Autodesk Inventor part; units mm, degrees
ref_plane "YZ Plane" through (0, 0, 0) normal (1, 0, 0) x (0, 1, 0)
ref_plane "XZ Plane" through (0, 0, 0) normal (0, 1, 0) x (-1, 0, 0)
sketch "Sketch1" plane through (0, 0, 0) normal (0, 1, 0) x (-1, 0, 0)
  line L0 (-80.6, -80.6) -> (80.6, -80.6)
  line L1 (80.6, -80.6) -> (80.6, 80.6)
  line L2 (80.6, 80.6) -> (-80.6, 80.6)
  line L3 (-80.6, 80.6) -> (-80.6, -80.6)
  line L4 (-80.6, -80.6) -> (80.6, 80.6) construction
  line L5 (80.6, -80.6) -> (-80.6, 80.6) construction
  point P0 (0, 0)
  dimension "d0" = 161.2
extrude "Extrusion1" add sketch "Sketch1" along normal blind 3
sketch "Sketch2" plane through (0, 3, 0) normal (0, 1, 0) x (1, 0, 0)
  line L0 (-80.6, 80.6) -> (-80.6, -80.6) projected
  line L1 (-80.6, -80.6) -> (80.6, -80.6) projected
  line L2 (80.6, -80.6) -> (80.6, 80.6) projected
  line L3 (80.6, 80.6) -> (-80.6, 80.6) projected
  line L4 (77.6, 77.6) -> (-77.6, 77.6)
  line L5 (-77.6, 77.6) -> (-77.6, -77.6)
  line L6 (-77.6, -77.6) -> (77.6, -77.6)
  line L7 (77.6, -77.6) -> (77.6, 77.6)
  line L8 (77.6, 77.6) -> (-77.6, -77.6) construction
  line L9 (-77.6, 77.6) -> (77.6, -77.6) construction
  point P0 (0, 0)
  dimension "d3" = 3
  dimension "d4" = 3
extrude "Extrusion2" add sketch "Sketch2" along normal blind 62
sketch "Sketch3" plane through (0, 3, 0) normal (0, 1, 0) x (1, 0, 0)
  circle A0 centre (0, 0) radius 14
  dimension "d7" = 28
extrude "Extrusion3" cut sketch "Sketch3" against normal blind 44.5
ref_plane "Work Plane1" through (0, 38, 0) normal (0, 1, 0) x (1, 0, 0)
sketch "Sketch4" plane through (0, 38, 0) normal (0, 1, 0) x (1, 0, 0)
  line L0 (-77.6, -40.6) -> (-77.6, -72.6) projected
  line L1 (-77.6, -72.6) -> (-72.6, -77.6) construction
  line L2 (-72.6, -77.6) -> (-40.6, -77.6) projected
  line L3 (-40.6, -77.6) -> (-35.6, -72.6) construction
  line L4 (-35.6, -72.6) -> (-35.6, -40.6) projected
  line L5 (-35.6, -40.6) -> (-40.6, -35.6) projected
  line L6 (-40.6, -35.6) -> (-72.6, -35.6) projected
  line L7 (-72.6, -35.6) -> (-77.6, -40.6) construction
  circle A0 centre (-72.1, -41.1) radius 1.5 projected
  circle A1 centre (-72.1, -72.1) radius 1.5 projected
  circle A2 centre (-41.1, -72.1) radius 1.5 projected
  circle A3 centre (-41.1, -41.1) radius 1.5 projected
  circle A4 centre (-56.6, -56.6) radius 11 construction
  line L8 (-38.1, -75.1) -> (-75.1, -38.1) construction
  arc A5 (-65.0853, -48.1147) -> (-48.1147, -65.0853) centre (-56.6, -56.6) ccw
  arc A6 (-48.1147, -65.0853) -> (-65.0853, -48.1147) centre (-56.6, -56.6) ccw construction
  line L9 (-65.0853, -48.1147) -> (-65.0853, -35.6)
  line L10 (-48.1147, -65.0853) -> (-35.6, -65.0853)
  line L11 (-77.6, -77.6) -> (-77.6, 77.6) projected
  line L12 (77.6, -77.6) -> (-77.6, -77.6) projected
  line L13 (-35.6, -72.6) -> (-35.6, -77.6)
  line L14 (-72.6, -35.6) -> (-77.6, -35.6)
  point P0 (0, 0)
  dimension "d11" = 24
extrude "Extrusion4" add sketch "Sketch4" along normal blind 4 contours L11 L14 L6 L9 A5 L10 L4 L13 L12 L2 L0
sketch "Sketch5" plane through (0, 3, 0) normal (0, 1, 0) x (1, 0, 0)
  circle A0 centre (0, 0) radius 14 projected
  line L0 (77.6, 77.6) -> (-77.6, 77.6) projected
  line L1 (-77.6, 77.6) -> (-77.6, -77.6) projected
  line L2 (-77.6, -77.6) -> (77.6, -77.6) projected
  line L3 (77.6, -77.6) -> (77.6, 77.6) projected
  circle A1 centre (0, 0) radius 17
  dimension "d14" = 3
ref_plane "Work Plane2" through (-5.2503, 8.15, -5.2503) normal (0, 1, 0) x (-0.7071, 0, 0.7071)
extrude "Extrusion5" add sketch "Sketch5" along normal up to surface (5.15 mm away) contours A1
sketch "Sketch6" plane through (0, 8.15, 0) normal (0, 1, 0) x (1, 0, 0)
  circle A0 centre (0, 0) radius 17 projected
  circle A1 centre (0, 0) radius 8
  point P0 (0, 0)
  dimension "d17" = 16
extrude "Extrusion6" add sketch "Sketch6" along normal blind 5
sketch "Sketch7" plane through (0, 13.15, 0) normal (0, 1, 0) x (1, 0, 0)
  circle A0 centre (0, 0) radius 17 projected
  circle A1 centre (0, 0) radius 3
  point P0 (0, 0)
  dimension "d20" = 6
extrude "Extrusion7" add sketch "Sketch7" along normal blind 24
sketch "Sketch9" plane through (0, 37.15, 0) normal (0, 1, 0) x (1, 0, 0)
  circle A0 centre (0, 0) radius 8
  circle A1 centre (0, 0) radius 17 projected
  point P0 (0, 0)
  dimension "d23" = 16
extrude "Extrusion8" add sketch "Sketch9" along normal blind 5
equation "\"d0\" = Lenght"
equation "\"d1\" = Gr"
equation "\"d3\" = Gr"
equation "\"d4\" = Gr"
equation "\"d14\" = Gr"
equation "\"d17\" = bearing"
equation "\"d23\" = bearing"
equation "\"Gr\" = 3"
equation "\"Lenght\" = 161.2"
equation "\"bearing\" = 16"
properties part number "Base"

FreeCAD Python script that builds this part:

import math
import FreeCAD as App
import Part
import Sketcher


def add_polygon(sketch, points):
    """Adds a closed chain of lines whose ends are joined by coincident constraints."""
    first, n = sketch.GeometryCount, len(points)
    for a, b in zip(points, points[1:] + points[:1]):
        sketch.addGeometry(Part.LineSegment(App.Vector(*a, 0), App.Vector(*b, 0)), False)
    for i in range(n):
        sketch.addConstraint(Sketcher.Constraint("Coincident", first + i, 2, first + (i + 1) % n, 1))

doc = App.newDocument("Part")
params = doc.addObject("Spreadsheet::Sheet", "Params")
for row, (alias, value) in enumerate([
    ("sketch1_width", "161.2 mm"),
    ("pad1_length", "3 mm"),
    ("sketch2_width", "161.2 mm"),
    ("pad2_length", "62 mm"),
    ("sketch3_diameter", "28 mm"),
    ("pocket1_length", "44.5 mm"),
    ("sketch4_radius", "12 mm"),
    ("sketch4_diameter", "3 mm"),
    ("sketch4_width", "42 mm"),
    ("pad3_length", "4 mm"),
    ("sketch5_diameter", "34 mm"),
    ("sketch5_diameter2", "28 mm"),
    ("pad4_length", "5.15 mm"),
    ("sketch6_diameter", "16 mm"),
    ("sketch6_diameter2", "34 mm"),
    ("pad5_length", "5 mm"),
    ("sketch7_diameter", "6 mm"),
    ("sketch7_diameter2", "34 mm"),
    ("pad6_length", "24 mm"),
    ("sketch8_diameter", "16 mm"),
    ("sketch8_diameter2", "34 mm"),
    ("pad7_length", "5 mm"),
], start=1):
    params.set(f"A{row}", alias)
    params.set(f"B{row}", "=" + value)
    params.setAlias(f"B{row}", alias)

body = doc.addObject("PartDesign::Body", "Body")

# Sketch on XZ plane
sketch1 = doc.addObject("Sketcher::SketchObject", "Sketch")
body.addObject(sketch1)
sketch1.AttachmentSupport = (doc.XZ_Plane, [""])
sketch1.MapMode = "FlatFace"
add_polygon(sketch1, [(80.6, 80.6), (80.6, -80.6), (-80.6, -80.6), (-80.6, 80.6)])  # lines 0-3
sketch1.addConstraint([
    Sketcher.Constraint("Vertical", 0),
    Sketcher.Constraint("Horizontal", 1),
    Sketcher.Constraint("Vertical", 2),
    Sketcher.Constraint("Horizontal", 3),
    Sketcher.Constraint("Symmetric", 0, 2, 2, 2, -1, 1),
    Sketcher.Constraint("Equal", 3, 0),
    Sketcher.Constraint("DistanceX", 1, 2, 1, 1, 161.2),
])
sketch1.setExpression("Constraints[10]", "Params.sketch1_width")
pad1 = doc.addObject("PartDesign::Pad", "Pad")
body.addObject(pad1)
pad1.Profile = sketch1
pad1.setExpression("Length", "Params.pad1_length")
pad1.Reversed = True

# Sketch on XZ plane
sketch2 = doc.addObject("Sketcher::SketchObject", "Sketch001")
body.addObject(sketch2)
sketch2.AttachmentSupport = (doc.XZ_Plane, [""])
sketch2.MapMode = "FlatFace"
sketch2.AttachmentOffset = App.Placement(App.Vector(0, 0, -3), App.Rotation())
add_polygon(sketch2, [(80.6, -80.6), (-80.6, -80.6), (-80.6, 80.6), (80.6, 80.6)])  # lines 0-3
add_polygon(sketch2, [(-77.6, -77.6), (77.6, -77.6), (77.6, 77.6), (-77.6, 77.6)])  # lines 4-7
sketch2.addConstraint([
    Sketcher.Constraint("Horizontal", 0),
    Sketcher.Constraint("Vertical", 1),
    Sketcher.Constraint("Horizontal", 2),
    Sketcher.Constraint("Vertical", 3),
    Sketcher.Constraint("Horizontal", 4),
    Sketcher.Constraint("Vertical", 5),
    Sketcher.Constraint("Horizontal", 6),
    Sketcher.Constraint("Vertical", 7),
    Sketcher.Constraint("Symmetric", 0, 2, 2, 2, -1, 1),
    Sketcher.Constraint("Symmetric", 4, 2, 6, 2, -1, 1),
    Sketcher.Constraint("Equal", 2, 1),
    Sketcher.Constraint("Equal", 6, 5),
    Sketcher.Constraint("DistanceX", 4, 2, 3, 2, 3.0),
    Sketcher.Constraint("DistanceX", 0, 2, 0, 1, 161.2),
])
sketch2.setExpression("Constraints[21]", "Params.sketch2_width")
pad2 = doc.addObject("PartDesign::Pad", "Pad001")
body.addObject(pad2)
pad2.Profile = sketch2
pad2.setExpression("Length", "Params.pad2_length")
pad2.Reversed = True

# Sketch on XZ plane
sketch3 = doc.addObject("Sketcher::SketchObject", "Sketch002")
body.addObject(sketch3)
sketch3.AttachmentSupport = (doc.XZ_Plane, [""])
sketch3.MapMode = "FlatFace"
sketch3.AttachmentOffset = App.Placement(App.Vector(0, 0, -3), App.Rotation())
sketch3.addGeometry(Part.Circle(App.Vector(0, 0, 0), App.Vector(0, 0, 1), 14), False)
sketch3.addConstraint([
    Sketcher.Constraint("Coincident", 0, 3, -1, 1),
    Sketcher.Constraint("Diameter", 0, 28.0),
])
sketch3.setExpression("Constraints[1]", "Params.sketch3_diameter")
pocket1 = doc.addObject("PartDesign::Pocket", "Pocket")
body.addObject(pocket1)
pocket1.Profile = sketch3
pocket1.setExpression("Length", "Params.pocket1_length")
pocket1.Reversed = True

# Sketch on XZ plane
sketch4 = doc.addObject("Sketcher::SketchObject", "Sketch003")
body.addObject(sketch4)
sketch4.AttachmentSupport = (doc.XZ_Plane, [""])
sketch4.MapMode = "FlatFace"
sketch4.AttachmentOffset = App.Placement(App.Vector(0, 0, -38), App.Rotation())
sketch4.addGeometry([
    Part.LineSegment(App.Vector(-77.6, 35.6, 0), App.Vector(-77.6, 77.6, 0)),  # 0
    Part.LineSegment(App.Vector(-77.6, 77.6, 0), App.Vector(-35.6, 77.6, 0)),  # 1
    Part.LineSegment(App.Vector(-35.6, 77.6, 0), App.Vector(-35.6, 65.0853, 0)),  # 2
    Part.LineSegment(App.Vector(-35.6, 65.0853, 0), App.Vector(-48.1147, 65.0853, 0)),  # 3
    Part.ArcOfCircle(Part.Circle(App.Vector(-56.6, 56.6, 0), App.Vector(0, 0, 1), 12.000026), math.radians(45), math.radians(225)),  # 4
    Part.LineSegment(App.Vector(-65.0853, 48.1147, 0), App.Vector(-65.0853, 35.6, 0)),  # 5
    Part.LineSegment(App.Vector(-65.0853, 35.6, 0), App.Vector(-77.6, 35.6, 0)),  # 6
    Part.Circle(App.Vector(-72.1, 72.1, 0), App.Vector(0, 0, 1), 1.5),  # 7
    Part.Circle(App.Vector(-41.1, 72.1, 0), App.Vector(0, 0, 1), 1.5),  # 8
    Part.Circle(App.Vector(-72.1, 41.1, 0), App.Vector(0, 0, 1), 1.5),  # 9
], False)
sketch4.addConstraint([
    Sketcher.Constraint("Coincident", 0, 2, 1, 1),
    Sketcher.Constraint("Coincident", 1, 2, 2, 1),
    Sketcher.Constraint("Coincident", 2, 2, 3, 1),
    Sketcher.Constraint("Coincident", 3, 2, 4, 1),
    Sketcher.Constraint("Coincident", 4, 2, 5, 1),
    Sketcher.Constraint("Coincident", 5, 2, 6, 1),
    Sketcher.Constraint("Coincident", 6, 2, 0, 1),
    Sketcher.Constraint("Vertical", 0),
    Sketcher.Constraint("Horizontal", 1),
    Sketcher.Constraint("Vertical", 2),
    Sketcher.Constraint("Horizontal", 3),
    Sketcher.Constraint("Vertical", 5),
    Sketcher.Constraint("Horizontal", 6),
    Sketcher.Constraint("Equal", 7, 8),
    Sketcher.Constraint("Equal", 8, 9),
    Sketcher.Constraint("Horizontal", 7, 3, 8, 3),
    Sketcher.Constraint("Vertical", 7, 3, 9, 3),
    Sketcher.Constraint("Equal", 3, 6),
    Sketcher.Constraint("Equal", 1, 0),
    Sketcher.Constraint("Equal", 6, 2),
    Sketcher.Constraint("Equal", 2, 5),
    Sketcher.Constraint("Radius", 4, 12.0),
    Sketcher.Constraint("Diameter", 7, 3.0),
    Sketcher.Constraint("DistanceX", 1, 1, 1, 2, 42.0),
    Sketcher.Constraint("DistanceX", 7, 3, 8, 3, 31.0),
    Sketcher.Constraint("DistanceY", 9, 3, 7, 3, 31.0),
    Sketcher.Constraint("DistanceX", 0, 2, 4, 3, 21.0),
    Sketcher.Constraint("DistanceX", 4, 3, -1, 1, 56.6),
    Sketcher.Constraint("DistanceY", -1, 1, 4, 3, 56.6),
    Sketcher.Constraint("DistanceX", 7, 3, -1, 1, 72.1),
    Sketcher.Constraint("DistanceY", -1, 1, 7, 3, 72.1),
])
sketch4.setExpression("Constraints[21]", "Params.sketch4_radius")
sketch4.setExpression("Constraints[22]", "Params.sketch4_diameter")
sketch4.setExpression("Constraints[23]", "Params.sketch4_width")
pad3 = doc.addObject("PartDesign::Pad", "Pad002")
body.addObject(pad3)
pad3.Profile = sketch4
pad3.setExpression("Length", "Params.pad3_length")
pad3.Reversed = True

# Sketch on XZ plane
sketch5 = doc.addObject("Sketcher::SketchObject", "Sketch004")
body.addObject(sketch5)
sketch5.AttachmentSupport = (doc.XZ_Plane, [""])
sketch5.MapMode = "FlatFace"
sketch5.AttachmentOffset = App.Placement(App.Vector(0, 0, -3), App.Rotation())
sketch5.addGeometry([
    Part.Circle(App.Vector(0, 0, 0), App.Vector(0, 0, 1), 17),
    Part.Circle(App.Vector(0, 0, 0), App.Vector(0, 0, 1), 14),
], False)
sketch5.addConstraint([
    Sketcher.Constraint("Coincident", 0, 3, -1, 1),
    Sketcher.Constraint("Coincident", 1, 3, -1, 1),
    Sketcher.Constraint("Diameter", 0, 34.0),
    Sketcher.Constraint("Diameter", 1, 28.0),
])
sketch5.setExpression("Constraints[2]", "Params.sketch5_diameter")
sketch5.setExpression("Constraints[3]", "Params.sketch5_diameter2")
pad4 = doc.addObject("PartDesign::Pad", "Pad003")
body.addObject(pad4)
pad4.Profile = sketch5
pad4.setExpression("Length", "Params.pad4_length")
pad4.Reversed = True

# Sketch on XZ plane
sketch6 = doc.addObject("Sketcher::SketchObject", "Sketch005")
body.addObject(sketch6)
sketch6.AttachmentSupport = (doc.XZ_Plane, [""])
sketch6.MapMode = "FlatFace"
sketch6.AttachmentOffset = App.Placement(App.Vector(0, 0, -8.15), App.Rotation())
sketch6.addGeometry([
    Part.Circle(App.Vector(0, 0, 0), App.Vector(0, 0, 1), 17),
    Part.Circle(App.Vector(0, 0, 0), App.Vector(0, 0, 1), 8),
], False)
sketch6.addConstraint([
    Sketcher.Constraint("Coincident", 0, 3, -1, 1),
    Sketcher.Constraint("Coincident", 1, 3, -1, 1),
    Sketcher.Constraint("Diameter", 1, 16.0),
    Sketcher.Constraint("Diameter", 0, 34.0),
])
sketch6.setExpression("Constraints[2]", "Params.sketch6_diameter")
sketch6.setExpression("Constraints[3]", "Params.sketch6_diameter2")
pad5 = doc.addObject("PartDesign::Pad", "Pad004")
body.addObject(pad5)
pad5.Profile = sketch6
pad5.setExpression("Length", "Params.pad5_length")
pad5.Reversed = True

# Sketch on XZ plane
sketch7 = doc.addObject("Sketcher::SketchObject", "Sketch006")
body.addObject(sketch7)
sketch7.AttachmentSupport = (doc.XZ_Plane, [""])
sketch7.MapMode = "FlatFace"
sketch7.AttachmentOffset = App.Placement(App.Vector(0, 0, -13.15), App.Rotation())
sketch7.addGeometry([
    Part.Circle(App.Vector(0, 0, 0), App.Vector(0, 0, 1), 17),
    Part.Circle(App.Vector(0, 0, 0), App.Vector(0, 0, 1), 3),
], False)
sketch7.addConstraint([
    Sketcher.Constraint("Coincident", 0, 3, -1, 1),
    Sketcher.Constraint("Coincident", 1, 3, -1, 1),
    Sketcher.Constraint("Diameter", 1, 6.0),
    Sketcher.Constraint("Diameter", 0, 34.0),
])
sketch7.setExpression("Constraints[2]", "Params.sketch7_diameter")
sketch7.setExpression("Constraints[3]", "Params.sketch7_diameter2")
pad6 = doc.addObject("PartDesign::Pad", "Pad005")
body.addObject(pad6)
pad6.Profile = sketch7
pad6.setExpression("Length", "Params.pad6_length")
pad6.Reversed = True

# Sketch on XZ plane
sketch8 = doc.addObject("Sketcher::SketchObject", "Sketch007")
body.addObject(sketch8)
sketch8.AttachmentSupport = (doc.XZ_Plane, [""])
sketch8.MapMode = "FlatFace"
sketch8.AttachmentOffset = App.Placement(App.Vector(0, 0, -37.15), App.Rotation())
sketch8.addGeometry([
    Part.Circle(App.Vector(0, 0, 0), App.Vector(0, 0, 1), 17),
    Part.Circle(App.Vector(0, 0, 0), App.Vector(0, 0, 1), 8),
], False)
sketch8.addConstraint([
    Sketcher.Constraint("Coincident", 0, 3, -1, 1),
    Sketcher.Constraint("Coincident", 1, 3, -1, 1),
    Sketcher.Constraint("Diameter", 1, 16.0),
    Sketcher.Constraint("Diameter", 0, 34.0),
])
sketch8.setExpression("Constraints[2]", "Params.sketch8_diameter")
sketch8.setExpression("Constraints[3]", "Params.sketch8_diameter2")
pad7 = doc.addObject("PartDesign::Pad", "Pad006")
body.addObject(pad7)
pad7.Profile = sketch8
pad7.setExpression("Length", "Params.pad7_length")
pad7.Reversed = True

doc.recompute()
